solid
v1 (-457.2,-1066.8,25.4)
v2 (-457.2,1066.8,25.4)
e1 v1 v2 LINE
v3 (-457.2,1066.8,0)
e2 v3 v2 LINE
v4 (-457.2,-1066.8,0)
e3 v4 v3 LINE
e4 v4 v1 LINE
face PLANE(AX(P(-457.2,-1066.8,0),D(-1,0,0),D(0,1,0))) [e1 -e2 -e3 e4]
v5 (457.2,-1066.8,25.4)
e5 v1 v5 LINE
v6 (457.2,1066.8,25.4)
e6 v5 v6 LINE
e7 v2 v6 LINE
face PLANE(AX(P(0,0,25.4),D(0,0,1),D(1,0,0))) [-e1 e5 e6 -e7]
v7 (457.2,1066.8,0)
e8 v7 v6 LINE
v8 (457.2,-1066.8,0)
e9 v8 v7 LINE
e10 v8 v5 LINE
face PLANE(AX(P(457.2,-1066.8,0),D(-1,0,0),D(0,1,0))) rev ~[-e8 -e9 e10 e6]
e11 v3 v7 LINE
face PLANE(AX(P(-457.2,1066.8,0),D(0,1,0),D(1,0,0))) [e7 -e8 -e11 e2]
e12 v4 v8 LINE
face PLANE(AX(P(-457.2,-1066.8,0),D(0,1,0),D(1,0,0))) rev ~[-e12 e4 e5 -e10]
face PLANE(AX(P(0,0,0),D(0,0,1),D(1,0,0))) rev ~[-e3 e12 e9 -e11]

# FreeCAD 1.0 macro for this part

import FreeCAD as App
import Part
import Sketcher
from FreeCAD import Vector
Q = App.Units.Quantity


def add_polygon(sketch, points):
    """Adds a closed chain of lines whose ends are joined by coincident constraints."""
    first, n = sketch.GeometryCount, len(points)
    for a, b in zip(points, points[1:] + points[:1]):
        sketch.addGeometry(Part.LineSegment(App.Vector(*a, 0), App.Vector(*b, 0)), False)
    for i in range(n):
        sketch.addConstraint(Sketcher.Constraint("Coincident", first + i, 2, first + (i + 1) % n, 1))

doc = App.newDocument("Part")
body = doc.addObject("PartDesign::Body", "Body")

# Sketch on XY plane
sketch1 = body.newObject("Sketcher::SketchObject", "Sketch")
sketch1.AttachmentSupport = (doc.getObject("XY_Plane"), [""])
sketch1.MapMode = "FlatFace"
add_polygon(sketch1, [(-457, 1067), (-457, -1067), (457, -1067), (457, 1067)])  # lines 0-3
sketch1.addConstraint([
    Sketcher.Constraint("Vertical", 0),
    Sketcher.Constraint("Horizontal", 1),
    Sketcher.Constraint("Vertical", 2),
    Sketcher.Constraint("Horizontal", 3),
    Sketcher.Constraint("Symmetric", 0, 2, 2, 2, -1, 1),
    Sketcher.Constraint("DistanceX", 1, 1, 1, 2, Q("36 in")),
    Sketcher.Constraint("DistanceY", 0, 2, 0, 1, Q("84 in")),
])
pad1 = body.newObject("PartDesign::Pad", "Pad")
pad1.Profile = sketch1
pad1.Length = Q("1 in")

doc.recompute()
